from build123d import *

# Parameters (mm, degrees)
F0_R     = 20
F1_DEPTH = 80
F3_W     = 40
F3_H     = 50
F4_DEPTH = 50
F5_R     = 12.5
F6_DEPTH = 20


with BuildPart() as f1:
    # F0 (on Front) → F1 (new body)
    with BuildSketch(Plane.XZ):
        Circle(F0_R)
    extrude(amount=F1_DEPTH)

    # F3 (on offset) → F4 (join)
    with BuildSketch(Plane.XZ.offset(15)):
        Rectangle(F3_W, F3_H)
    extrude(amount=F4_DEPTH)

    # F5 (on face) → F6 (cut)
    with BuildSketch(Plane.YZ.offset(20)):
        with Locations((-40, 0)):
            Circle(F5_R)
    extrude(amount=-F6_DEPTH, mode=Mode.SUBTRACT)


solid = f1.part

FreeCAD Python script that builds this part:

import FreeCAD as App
import Part
import Sketcher

V = App.Vector
Q = App.Units.Quantity


def add_polygon(sketch, points):
    """Adds a closed chain of lines whose ends are joined by coincident constraints."""
    first, n = sketch.GeometryCount, len(points)
    for a, b in zip(points, points[1:] + points[:1]):
        sketch.addGeometry(Part.LineSegment(App.Vector(*a, 0), App.Vector(*b, 0)), False)
    for i in range(n):
        sketch.addConstraint(Sketcher.Constraint("Coincident", first + i, 2, first + (i + 1) % n, 1))

doc = App.newDocument("Part")
body = doc.addObject("PartDesign::Body", "Body")

sketch1 = body.newObject("Sketcher::SketchObject", "Sketch")
sketch1.AttachmentSupport = (doc.getObject("XZ_Plane"), [""])
sketch1.MapMode = "FlatFace"
sketch1.addGeometry(Part.Circle(V(0, 0, 0), V(0, 0, 1), 20), False)
sketch1.addConstraint(Sketcher.Constraint("Coincident", 0, 3, -1, 1))
sketch1.addConstraint(Sketcher.Constraint("Diameter", 0, Q("40 mm")))
pad1 = body.newObject("PartDesign::Pad", "Pad")
pad1.Profile = sketch1
pad1.Length = 80

sketch2 = body.newObject("Sketcher::SketchObject", "Sketch001")
sketch2.AttachmentSupport = (doc.getObject("XZ_Plane"), [""])
sketch2.MapMode = "FlatFace"
sketch2.AttachmentOffset = App.Placement(V(0, 0, 15), App.Rotation())
add_polygon(sketch2, [(-20, 25), (-20, -25), (20, -25), (20, 25)])
sketch2.addConstraint(Sketcher.Constraint("Vertical", 0))
sketch2.addConstraint(Sketcher.Constraint("Horizontal", 1))
sketch2.addConstraint(Sketcher.Constraint("Vertical", 2))
sketch2.addConstraint(Sketcher.Constraint("Horizontal", 3))
sketch2.addConstraint(Sketcher.Constraint("Symmetric", 0, 2, 2, 2, -1, 1))
sketch2.addConstraint(Sketcher.Constraint("DistanceX", 1, 1, 1, 2, Q("40 mm")))
sketch2.addConstraint(Sketcher.Constraint("DistanceY", 0, 2, 0, 1, Q("50 mm")))
pad2 = body.newObject("PartDesign::Pad", "Pad001")
pad2.Profile = sketch2
pad2.Length = 50

sketch3 = body.newObject("Sketcher::SketchObject", "Sketch002")
sketch3.AttachmentSupport = (doc.getObject("YZ_Plane"), [""])
sketch3.MapMode = "FlatFace"
sketch3.AttachmentOffset = App.Placement(V(0, 0, 20), App.Rotation())
sketch3.addGeometry(Part.Circle(V(-40, 0, 0), V(0, 0, 1), 12), False)
sketch3.addConstraint(Sketcher.Constraint("PointOnObject", 0, 3, -1))
sketch3.addConstraint(Sketcher.Constraint("Diameter", 0, Q("25 mm")))
sketch3.addConstraint(Sketcher.Constraint("DistanceX", 0, 3, -1, 1, Q("40 mm")))
pocket1 = body.newObject("PartDesign::Pocket", "Pocket")
pocket1.Profile = sketch3
pocket1.Length = 20

doc.recompute()
